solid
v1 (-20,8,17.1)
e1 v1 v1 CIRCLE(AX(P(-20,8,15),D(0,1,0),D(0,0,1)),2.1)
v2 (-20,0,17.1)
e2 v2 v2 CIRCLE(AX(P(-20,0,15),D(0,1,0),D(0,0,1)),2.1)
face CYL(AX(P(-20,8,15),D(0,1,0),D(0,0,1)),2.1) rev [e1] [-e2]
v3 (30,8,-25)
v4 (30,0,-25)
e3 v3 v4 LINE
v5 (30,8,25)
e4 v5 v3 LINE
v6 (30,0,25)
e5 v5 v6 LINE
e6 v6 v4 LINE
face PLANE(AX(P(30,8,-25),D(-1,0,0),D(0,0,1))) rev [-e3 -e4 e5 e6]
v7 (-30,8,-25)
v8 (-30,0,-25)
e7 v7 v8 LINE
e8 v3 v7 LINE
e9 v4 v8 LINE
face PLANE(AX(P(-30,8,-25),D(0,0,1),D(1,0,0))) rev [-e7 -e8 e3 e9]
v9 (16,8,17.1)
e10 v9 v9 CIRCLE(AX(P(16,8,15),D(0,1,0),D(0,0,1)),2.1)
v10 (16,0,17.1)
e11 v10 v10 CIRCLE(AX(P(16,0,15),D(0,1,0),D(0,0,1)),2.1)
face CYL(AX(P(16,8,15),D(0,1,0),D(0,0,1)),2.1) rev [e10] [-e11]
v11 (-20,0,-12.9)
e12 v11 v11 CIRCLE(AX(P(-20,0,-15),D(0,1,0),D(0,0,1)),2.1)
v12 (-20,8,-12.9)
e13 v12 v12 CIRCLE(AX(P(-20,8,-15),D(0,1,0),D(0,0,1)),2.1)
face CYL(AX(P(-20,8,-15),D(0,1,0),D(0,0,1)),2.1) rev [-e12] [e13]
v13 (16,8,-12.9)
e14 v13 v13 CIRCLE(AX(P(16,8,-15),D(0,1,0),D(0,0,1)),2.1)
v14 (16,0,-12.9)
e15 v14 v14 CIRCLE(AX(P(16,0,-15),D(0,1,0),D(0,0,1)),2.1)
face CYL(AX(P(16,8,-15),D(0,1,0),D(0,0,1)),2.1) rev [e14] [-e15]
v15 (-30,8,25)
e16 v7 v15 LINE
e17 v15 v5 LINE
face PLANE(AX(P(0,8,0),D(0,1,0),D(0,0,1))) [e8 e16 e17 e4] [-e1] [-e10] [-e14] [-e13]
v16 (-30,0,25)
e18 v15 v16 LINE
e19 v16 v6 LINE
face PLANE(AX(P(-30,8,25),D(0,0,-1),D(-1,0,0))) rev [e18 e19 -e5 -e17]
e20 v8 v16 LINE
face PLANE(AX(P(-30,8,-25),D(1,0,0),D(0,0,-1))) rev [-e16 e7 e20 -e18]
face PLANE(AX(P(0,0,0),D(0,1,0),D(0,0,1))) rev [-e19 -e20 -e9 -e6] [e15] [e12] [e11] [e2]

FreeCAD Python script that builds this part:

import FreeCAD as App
import Part
import Sketcher
from FreeCAD import Vector
Q = App.Units.Quantity


def add_polygon(sketch, points):
    """Adds a closed chain of lines whose ends are joined by coincident constraints."""
    first, n = sketch.GeometryCount, len(points)
    for a, b in zip(points, points[1:] + points[:1]):
        sketch.addGeometry(Part.LineSegment(App.Vector(*a, 0), App.Vector(*b, 0)), False)
    for i in range(n):
        sketch.addConstraint(Sketcher.Constraint("Coincident", first + i, 2, first + (i + 1) % n, 1))

doc = App.newDocument("Part")
body = doc.addObject("PartDesign::Body", "Body")

# Sketch on XZ plane
sketch1 = body.newObject("Sketcher::SketchObject", "Sketch")
sketch1.AttachmentSupport = (doc.getObject("XZ_Plane"), [""])
sketch1.MapMode = "FlatFace"
add_polygon(sketch1, [(-30, -25), (-30, 25), (30, 25), (30, -25)])  # lines 0-3
sketch1.addConstraint([
    Sketcher.Constraint("Vertical", 0),
    Sketcher.Constraint("Horizontal", 1),
    Sketcher.Constraint("Vertical", 2),
    Sketcher.Constraint("Horizontal", 3),
    Sketcher.Constraint("Symmetric", 0, 2, 2, 2, -1, 1),
    Sketcher.Constraint("DistanceX", 1, 1, 1, 2, Q("60 mm")),
    Sketcher.Constraint("DistanceY", 0, 1, 0, 2, Q("50 mm")),
])
pad1 = body.newObject("PartDesign::Pad", "Pad")
pad1.Profile = sketch1
pad1.Length = 8
pad1.Reversed = True

# Sketch on XZ plane
sketch2 = body.newObject("Sketcher::SketchObject", "Sketch001")
sketch2.AttachmentSupport = (doc.getObject("XZ_Plane"), [""])
sketch2.MapMode = "FlatFace"
sketch2.AttachmentOffset = App.Placement(Vector(0, 0, -8), App.Rotation())
sketch2.addGeometry([
    Part.Circle(Vector(-20, 15, 0), Vector(0, 0, 1), 2.1),
    Part.Circle(Vector(16, 15, 0), Vector(0, 0, 1), 2.1),
    Part.Circle(Vector(16, -15, 0), Vector(0, 0, 1), 2.1),
    Part.Circle(Vector(-20, -15, 0), Vector(0, 0, 1), 2.1),
], False)
sketch2.addConstraint([
    Sketcher.Constraint("Equal", 0, 1),
    Sketcher.Constraint("Equal", 1, 2),
    Sketcher.Constraint("Equal", 2, 3),
    Sketcher.Constraint("Symmetric", 1, 3, 2, 3, -1),
    Sketcher.Constraint("Symmetric", 0, 3, 3, 3, -1),
    Sketcher.Constraint("Horizontal", 0, 3, 1, 3),
    Sketcher.Constraint("Diameter", 0, Q("4.2 mm")),
    Sketcher.Constraint("DistanceX", 0, 3, -1, 1, Q("20 mm")),
    Sketcher.Constraint("DistanceY", -1, 1, 0, 3, Q("15 mm")),
    Sketcher.Constraint("DistanceX", -1, 1, 1, 3, Q("16 mm")),
])
doc.recompute()
hole = body.newObject("PartDesign::Hole", "Hole")
hole.Profile = sketch2
hole.ThreadType = "None"
hole.Diameter = 4.2
hole.DepthType = "ThroughAll"
hole.Reversed = True

doc.recompute()
